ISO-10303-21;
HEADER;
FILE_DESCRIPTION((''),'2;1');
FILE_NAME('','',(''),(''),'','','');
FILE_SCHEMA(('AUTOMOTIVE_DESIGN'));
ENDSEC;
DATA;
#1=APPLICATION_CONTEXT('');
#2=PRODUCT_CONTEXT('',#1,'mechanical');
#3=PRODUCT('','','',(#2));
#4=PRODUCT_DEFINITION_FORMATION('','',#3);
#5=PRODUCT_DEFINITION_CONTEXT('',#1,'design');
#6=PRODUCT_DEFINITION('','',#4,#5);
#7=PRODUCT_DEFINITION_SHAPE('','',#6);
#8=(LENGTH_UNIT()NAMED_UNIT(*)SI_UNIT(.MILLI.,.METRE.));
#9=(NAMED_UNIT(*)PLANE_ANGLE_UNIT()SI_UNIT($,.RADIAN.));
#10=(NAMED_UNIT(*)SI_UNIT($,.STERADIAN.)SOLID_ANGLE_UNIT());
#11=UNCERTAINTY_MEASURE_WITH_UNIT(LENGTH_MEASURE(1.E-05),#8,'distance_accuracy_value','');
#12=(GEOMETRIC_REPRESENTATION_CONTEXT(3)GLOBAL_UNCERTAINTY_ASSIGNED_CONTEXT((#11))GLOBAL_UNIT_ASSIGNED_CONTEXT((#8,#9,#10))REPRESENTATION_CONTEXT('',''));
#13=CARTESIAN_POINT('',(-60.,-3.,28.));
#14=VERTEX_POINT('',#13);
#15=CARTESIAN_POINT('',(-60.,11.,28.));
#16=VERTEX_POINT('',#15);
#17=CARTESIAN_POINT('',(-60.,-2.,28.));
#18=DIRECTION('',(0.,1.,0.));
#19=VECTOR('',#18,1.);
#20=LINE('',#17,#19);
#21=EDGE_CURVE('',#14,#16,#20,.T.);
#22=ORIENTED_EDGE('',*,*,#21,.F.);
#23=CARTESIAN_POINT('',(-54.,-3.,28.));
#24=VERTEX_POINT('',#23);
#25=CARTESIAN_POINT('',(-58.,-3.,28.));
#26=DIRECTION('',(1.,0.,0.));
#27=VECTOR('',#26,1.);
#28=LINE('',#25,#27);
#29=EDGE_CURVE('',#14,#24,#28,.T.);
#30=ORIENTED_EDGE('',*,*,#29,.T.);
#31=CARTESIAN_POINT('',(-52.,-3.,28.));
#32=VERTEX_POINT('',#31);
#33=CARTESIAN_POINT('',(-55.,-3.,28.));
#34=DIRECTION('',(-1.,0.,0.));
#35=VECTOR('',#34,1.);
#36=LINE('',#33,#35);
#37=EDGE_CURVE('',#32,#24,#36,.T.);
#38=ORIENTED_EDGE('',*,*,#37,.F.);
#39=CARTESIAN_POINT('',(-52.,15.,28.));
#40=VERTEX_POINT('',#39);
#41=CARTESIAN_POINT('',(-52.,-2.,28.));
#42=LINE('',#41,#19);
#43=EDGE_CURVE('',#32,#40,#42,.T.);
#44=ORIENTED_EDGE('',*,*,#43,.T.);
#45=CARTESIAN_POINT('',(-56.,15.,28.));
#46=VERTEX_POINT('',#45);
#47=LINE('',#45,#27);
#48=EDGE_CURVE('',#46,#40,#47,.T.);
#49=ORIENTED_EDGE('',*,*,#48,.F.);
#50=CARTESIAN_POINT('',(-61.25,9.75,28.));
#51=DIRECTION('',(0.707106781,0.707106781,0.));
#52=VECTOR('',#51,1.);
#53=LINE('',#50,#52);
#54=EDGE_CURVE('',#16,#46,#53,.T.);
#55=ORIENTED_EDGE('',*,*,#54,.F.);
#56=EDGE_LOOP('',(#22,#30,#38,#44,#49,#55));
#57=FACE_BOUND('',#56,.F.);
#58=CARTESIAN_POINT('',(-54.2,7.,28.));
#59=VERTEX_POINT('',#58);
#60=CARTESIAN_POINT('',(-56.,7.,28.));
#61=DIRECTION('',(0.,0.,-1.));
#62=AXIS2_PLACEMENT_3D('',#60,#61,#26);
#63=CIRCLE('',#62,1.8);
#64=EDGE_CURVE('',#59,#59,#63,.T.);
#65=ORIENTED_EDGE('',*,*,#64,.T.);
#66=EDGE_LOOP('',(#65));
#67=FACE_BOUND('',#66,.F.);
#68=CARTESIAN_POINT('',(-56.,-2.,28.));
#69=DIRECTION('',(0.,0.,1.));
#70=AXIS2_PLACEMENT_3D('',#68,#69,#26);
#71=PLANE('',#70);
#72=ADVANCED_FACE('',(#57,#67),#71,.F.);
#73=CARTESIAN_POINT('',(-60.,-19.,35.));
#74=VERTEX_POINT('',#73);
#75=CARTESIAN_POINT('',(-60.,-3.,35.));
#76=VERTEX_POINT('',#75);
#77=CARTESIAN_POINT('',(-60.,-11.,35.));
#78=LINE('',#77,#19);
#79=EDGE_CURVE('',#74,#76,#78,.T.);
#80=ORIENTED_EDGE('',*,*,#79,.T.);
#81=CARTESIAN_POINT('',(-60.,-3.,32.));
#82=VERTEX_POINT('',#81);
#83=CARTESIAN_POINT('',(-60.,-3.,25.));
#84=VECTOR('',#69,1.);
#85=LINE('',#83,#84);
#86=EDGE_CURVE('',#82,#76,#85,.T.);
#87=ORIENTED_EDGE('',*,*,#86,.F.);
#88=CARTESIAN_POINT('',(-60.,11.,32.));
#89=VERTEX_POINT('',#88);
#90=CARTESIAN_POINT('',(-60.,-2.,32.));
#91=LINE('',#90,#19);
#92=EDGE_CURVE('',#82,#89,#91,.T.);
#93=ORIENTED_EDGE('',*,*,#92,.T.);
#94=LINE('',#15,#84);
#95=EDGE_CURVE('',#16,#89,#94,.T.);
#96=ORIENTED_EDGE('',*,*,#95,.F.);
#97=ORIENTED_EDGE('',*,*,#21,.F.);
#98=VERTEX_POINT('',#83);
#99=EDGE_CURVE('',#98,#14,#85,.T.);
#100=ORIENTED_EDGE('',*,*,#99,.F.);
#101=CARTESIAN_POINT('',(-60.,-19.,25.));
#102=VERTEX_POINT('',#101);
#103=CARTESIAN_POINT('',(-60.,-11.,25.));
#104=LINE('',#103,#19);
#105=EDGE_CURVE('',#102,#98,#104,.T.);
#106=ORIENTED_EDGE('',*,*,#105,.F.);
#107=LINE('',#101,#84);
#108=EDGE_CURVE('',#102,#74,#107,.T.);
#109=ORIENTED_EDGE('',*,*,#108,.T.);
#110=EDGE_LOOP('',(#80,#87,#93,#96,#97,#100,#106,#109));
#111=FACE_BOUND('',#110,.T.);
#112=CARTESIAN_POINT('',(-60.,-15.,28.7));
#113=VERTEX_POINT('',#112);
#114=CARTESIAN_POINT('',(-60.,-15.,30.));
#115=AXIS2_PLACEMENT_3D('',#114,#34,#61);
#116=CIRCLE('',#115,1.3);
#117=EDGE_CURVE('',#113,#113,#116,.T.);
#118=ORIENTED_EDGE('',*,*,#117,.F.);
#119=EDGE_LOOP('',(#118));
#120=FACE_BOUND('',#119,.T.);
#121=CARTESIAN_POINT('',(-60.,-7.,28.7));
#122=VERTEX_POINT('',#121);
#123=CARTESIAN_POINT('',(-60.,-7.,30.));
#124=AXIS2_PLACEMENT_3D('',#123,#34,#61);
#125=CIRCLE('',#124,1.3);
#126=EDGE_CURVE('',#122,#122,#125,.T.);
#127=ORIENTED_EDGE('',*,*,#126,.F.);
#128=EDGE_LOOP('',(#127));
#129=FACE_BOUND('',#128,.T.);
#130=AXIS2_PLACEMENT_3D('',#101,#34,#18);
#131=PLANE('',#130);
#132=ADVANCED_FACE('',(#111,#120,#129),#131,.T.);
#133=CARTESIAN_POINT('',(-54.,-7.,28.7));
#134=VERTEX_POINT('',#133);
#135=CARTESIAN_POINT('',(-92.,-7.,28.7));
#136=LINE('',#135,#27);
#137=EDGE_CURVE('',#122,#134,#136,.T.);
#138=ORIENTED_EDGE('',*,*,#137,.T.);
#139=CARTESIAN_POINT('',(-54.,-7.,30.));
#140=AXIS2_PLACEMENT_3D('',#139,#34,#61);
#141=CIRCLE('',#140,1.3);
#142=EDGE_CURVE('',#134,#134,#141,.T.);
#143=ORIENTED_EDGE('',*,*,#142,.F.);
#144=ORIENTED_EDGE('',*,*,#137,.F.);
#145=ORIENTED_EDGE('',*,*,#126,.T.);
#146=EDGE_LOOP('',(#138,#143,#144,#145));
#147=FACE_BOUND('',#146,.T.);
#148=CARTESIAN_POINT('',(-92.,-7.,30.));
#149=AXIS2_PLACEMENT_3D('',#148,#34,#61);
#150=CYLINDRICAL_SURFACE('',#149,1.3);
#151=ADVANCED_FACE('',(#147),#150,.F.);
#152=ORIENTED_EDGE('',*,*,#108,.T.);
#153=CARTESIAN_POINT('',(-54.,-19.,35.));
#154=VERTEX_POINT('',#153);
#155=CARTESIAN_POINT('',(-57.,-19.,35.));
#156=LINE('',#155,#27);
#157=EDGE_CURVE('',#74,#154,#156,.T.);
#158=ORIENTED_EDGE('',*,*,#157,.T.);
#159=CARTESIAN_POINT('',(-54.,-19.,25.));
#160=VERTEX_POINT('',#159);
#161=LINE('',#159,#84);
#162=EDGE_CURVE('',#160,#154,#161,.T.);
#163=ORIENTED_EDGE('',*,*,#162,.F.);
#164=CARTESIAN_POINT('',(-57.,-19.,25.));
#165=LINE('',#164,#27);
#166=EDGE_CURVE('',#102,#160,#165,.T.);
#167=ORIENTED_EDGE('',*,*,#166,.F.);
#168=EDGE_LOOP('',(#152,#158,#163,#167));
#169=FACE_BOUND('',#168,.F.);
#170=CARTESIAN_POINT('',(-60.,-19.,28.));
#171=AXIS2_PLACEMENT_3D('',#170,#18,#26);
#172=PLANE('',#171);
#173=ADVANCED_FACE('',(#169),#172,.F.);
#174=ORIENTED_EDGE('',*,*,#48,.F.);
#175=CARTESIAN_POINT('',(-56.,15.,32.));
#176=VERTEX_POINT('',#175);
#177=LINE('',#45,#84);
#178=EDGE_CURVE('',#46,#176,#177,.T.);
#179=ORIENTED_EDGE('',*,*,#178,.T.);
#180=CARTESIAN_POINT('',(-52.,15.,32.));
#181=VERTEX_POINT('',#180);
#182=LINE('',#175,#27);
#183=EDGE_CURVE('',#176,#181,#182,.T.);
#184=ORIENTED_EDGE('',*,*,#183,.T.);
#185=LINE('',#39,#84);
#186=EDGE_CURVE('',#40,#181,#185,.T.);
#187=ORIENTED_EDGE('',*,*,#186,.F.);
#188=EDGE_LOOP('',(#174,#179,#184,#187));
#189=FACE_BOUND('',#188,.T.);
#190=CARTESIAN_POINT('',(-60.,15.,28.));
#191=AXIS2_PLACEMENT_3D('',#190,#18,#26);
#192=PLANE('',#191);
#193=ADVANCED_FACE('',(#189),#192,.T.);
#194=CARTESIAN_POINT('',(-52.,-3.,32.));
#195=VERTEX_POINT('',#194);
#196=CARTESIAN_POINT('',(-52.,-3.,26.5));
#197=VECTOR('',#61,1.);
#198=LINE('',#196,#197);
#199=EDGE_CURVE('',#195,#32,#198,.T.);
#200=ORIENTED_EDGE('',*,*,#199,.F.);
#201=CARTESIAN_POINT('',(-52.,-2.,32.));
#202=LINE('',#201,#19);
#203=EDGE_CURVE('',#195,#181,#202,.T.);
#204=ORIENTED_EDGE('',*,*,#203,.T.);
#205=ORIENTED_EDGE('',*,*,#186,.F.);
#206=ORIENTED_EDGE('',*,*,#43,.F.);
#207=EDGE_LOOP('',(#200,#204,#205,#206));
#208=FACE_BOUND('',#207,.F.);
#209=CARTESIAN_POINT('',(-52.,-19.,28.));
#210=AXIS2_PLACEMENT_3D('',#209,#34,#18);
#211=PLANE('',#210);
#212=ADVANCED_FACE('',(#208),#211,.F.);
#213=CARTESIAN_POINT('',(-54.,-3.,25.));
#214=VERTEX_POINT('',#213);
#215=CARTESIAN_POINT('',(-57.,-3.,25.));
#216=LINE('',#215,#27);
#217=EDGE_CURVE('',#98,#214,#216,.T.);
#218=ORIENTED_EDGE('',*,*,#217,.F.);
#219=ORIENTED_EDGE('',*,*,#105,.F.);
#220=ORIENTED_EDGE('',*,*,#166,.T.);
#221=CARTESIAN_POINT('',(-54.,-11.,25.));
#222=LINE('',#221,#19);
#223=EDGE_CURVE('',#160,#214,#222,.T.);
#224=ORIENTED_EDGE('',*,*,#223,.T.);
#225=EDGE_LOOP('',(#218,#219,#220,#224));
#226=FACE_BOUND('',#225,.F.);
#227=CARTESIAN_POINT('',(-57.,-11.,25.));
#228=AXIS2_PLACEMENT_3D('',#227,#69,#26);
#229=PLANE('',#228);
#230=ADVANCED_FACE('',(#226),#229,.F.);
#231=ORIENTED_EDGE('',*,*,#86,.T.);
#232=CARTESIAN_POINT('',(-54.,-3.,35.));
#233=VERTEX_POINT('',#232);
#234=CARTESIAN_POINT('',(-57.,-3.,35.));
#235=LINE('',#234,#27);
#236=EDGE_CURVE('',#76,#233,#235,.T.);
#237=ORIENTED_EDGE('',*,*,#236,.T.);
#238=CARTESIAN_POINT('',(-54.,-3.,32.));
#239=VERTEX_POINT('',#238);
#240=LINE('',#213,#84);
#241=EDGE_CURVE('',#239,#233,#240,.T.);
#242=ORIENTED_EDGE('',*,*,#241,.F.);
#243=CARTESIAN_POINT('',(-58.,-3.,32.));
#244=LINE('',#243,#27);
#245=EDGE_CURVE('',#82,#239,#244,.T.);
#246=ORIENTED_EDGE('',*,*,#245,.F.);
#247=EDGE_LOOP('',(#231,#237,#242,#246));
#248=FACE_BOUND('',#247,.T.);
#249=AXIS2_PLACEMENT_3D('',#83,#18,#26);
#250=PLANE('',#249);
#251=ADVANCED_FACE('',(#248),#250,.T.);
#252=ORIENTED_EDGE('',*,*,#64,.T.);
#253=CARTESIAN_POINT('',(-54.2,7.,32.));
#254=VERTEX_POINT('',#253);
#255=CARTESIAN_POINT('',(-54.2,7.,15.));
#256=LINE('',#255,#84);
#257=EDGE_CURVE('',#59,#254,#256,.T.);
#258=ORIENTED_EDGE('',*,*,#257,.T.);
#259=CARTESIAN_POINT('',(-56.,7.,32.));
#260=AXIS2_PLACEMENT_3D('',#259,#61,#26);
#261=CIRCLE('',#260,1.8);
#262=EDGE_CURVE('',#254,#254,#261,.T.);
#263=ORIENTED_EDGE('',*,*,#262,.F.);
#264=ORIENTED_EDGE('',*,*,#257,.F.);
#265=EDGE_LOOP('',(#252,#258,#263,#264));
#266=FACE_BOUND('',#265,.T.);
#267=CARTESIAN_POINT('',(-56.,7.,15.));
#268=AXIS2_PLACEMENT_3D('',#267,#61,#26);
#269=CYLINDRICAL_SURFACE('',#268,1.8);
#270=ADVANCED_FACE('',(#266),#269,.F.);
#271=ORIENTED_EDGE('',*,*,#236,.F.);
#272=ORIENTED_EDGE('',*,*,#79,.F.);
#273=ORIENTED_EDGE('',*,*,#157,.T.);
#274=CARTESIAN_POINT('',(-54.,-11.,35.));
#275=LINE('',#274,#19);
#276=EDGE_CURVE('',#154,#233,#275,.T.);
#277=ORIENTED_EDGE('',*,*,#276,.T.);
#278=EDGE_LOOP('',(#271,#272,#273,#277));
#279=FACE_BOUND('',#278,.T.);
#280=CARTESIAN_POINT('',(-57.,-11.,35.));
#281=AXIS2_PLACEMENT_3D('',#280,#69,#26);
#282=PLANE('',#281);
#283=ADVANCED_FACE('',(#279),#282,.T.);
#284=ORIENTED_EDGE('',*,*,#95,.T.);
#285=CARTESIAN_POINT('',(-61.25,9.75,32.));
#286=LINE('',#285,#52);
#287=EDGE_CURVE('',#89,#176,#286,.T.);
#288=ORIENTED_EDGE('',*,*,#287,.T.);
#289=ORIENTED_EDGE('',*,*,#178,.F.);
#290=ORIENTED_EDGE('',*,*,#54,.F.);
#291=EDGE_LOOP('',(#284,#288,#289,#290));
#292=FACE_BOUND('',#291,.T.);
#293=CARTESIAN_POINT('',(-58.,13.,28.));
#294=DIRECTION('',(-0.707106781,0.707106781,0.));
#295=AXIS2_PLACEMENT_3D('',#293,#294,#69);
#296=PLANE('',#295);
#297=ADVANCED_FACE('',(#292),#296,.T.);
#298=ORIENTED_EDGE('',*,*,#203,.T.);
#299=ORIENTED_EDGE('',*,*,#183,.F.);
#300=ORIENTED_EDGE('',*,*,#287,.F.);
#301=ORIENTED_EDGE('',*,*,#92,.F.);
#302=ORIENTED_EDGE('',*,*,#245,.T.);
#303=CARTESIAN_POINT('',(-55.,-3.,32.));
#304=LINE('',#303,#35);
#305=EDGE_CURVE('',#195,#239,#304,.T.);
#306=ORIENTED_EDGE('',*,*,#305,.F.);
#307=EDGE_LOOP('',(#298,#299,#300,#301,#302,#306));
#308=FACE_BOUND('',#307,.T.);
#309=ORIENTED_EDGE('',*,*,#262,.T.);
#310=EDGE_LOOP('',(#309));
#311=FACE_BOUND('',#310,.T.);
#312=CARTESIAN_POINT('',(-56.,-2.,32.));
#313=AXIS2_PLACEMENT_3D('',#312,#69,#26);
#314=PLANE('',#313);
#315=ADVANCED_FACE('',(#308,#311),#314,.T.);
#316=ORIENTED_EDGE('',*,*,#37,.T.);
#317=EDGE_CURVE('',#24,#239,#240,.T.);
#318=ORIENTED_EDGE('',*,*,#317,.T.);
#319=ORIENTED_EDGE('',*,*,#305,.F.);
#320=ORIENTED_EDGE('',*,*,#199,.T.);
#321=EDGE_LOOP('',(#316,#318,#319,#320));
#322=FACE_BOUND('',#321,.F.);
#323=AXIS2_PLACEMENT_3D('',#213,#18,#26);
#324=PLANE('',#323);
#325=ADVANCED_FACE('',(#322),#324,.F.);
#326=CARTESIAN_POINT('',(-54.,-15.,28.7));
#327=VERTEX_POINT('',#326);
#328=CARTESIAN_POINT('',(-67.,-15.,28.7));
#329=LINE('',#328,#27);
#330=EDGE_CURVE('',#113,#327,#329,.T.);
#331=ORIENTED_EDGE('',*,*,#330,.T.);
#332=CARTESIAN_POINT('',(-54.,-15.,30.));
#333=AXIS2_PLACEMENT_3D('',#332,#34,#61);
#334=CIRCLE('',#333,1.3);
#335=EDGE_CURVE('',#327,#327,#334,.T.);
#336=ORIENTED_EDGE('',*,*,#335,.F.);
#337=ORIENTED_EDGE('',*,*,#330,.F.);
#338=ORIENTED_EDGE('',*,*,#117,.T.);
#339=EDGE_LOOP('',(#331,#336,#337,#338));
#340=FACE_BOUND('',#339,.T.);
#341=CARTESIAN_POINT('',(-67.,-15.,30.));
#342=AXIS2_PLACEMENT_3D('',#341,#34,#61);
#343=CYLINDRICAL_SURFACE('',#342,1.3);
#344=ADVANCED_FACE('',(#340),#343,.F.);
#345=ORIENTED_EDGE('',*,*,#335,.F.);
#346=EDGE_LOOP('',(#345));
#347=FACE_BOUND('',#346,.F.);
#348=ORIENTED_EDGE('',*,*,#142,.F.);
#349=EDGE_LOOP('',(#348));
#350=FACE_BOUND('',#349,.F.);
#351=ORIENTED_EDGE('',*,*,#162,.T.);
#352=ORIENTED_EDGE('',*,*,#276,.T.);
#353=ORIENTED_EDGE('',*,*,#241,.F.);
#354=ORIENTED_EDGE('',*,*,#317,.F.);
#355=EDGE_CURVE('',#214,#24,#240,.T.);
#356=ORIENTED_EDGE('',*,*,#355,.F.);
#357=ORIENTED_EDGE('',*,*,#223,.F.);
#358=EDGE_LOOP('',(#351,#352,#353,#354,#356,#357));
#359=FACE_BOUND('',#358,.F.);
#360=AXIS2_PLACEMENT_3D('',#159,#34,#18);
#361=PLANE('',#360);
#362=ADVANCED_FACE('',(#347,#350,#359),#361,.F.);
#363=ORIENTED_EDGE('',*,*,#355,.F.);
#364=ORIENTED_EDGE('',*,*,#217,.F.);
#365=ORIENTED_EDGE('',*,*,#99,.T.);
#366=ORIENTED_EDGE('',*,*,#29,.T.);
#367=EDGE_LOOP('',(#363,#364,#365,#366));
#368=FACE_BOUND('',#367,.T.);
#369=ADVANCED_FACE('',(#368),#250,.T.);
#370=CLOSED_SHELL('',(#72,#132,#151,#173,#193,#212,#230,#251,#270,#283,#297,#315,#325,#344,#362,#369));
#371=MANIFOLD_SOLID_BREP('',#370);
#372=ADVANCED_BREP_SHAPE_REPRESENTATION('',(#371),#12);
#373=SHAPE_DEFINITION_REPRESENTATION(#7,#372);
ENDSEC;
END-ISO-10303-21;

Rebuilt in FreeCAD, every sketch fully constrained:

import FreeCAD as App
import Part
import Sketcher

V = App.Vector
Q = App.Units.Quantity


def edges_at(feature, points):
    """Names of the edges that pass closest to the given points."""
    edges = feature.Shape.Edges
    near = lambda p: min(range(len(edges)), key=lambda i: edges[i].distToShape(Part.Vertex(*p))[0])
    return sorted({f"Edge{near(p) + 1}" for p in points})


def add_polygon(sketch, points):
    """Adds a closed chain of lines whose ends are joined by coincident constraints."""
    first, n = sketch.GeometryCount, len(points)
    for a, b in zip(points, points[1:] + points[:1]):
        sketch.addGeometry(Part.LineSegment(App.Vector(*a, 0), App.Vector(*b, 0)), False)
    for i in range(n):
        sketch.addConstraint(Sketcher.Constraint("Coincident", first + i, 2, first + (i + 1) % n, 1))

doc = App.newDocument("Part")
body = doc.addObject("PartDesign::Body", "Body")

sketch1 = doc.addObject("Sketcher::SketchObject", "Sketch")
body.addObject(sketch1)
sketch1.AttachmentSupport = (doc.XY_Plane, [""])
sketch1.MapMode = "FlatFace"
sketch1.addGeometry(Part.Circle(V(0, 0, 0), V(0, 0, 1), 1.3), False)
sketch1.addConstraint([
    Sketcher.Constraint("Coincident", 0, 3, -1, 1),
    Sketcher.Constraint("Diameter", 0, Q("2.6 mm")),
])
pad1 = doc.addObject("PartDesign::Pad", "Pad")
body.addObject(pad1)
pad1.Profile = sketch1
pad1.Length = 40
body2 = doc.addObject("PartDesign::Body", "Body001")
doc.recompute()

body.Placement = App.Placement(V(0, 0, 0), App.Rotation(V(0, 1, 0), 90))
boolean = doc.addObject("PartDesign::Boolean", "Boolean")
body2.addObject(boolean)
boolean.Type = "Fuse"
boolean.addObjects([body])
body3 = doc.addObject("PartDesign::Body", "Body002")
doc.recompute()

body2.Placement = App.Placement(V(-48, 7, 30), App.Rotation(V(0, 0, 1), 0))
boolean2 = doc.addObject("PartDesign::Boolean", "Boolean001")
body3.addObject(boolean2)
boolean2.Type = "Fuse"
boolean2.addObjects([body2])
body4 = doc.addObject("PartDesign::Body", "Body003")

sketch2 = doc.addObject("Sketcher::SketchObject", "Sketch001")
body4.addObject(sketch2)
sketch2.AttachmentSupport = (doc.getObject("XY_Plane003"), [""])
sketch2.MapMode = "FlatFace"
sketch2.addGeometry(Part.Circle(V(0, 0, 0), V(0, 0, 1), 1.3), False)
sketch2.addConstraint([
    Sketcher.Constraint("Coincident", 0, 3, -1, 1),
    Sketcher.Constraint("Diameter", 0, Q("2.6 mm")),
])
pad2 = doc.addObject("PartDesign::Pad", "Pad001")
body4.addObject(pad2)
pad2.Profile = sketch2
pad2.Length = 40
body5 = doc.addObject("PartDesign::Body", "Body004")
doc.recompute()

body4.Placement = App.Placement(V(0, 0, 0), App.Rotation(V(0, 1, 0), 90))
boolean3 = doc.addObject("PartDesign::Boolean", "Boolean002")
body5.addObject(boolean3)
boolean3.Type = "Fuse"
boolean3.addObjects([body4])
body6 = doc.addObject("PartDesign::Body", "Body005")
doc.recompute()

body5.Placement = App.Placement(V(-67, -15, 30), App.Rotation(V(0, 0, 1), 0))
boolean4 = doc.addObject("PartDesign::Boolean", "Boolean003")
body6.addObject(boolean4)
boolean4.Type = "Fuse"
boolean4.addObjects([body5])
body7 = doc.addObject("PartDesign::Body", "Body006")

sketch3 = doc.addObject("Sketcher::SketchObject", "Sketch002")
body7.addObject(sketch3)
sketch3.AttachmentSupport = (doc.getObject("XY_Plane006"), [""])
sketch3.MapMode = "FlatFace"
sketch3.addGeometry(Part.Circle(V(0, 0, 0), V(0, 0, 1), 1.3), False)
sketch3.addConstraint([
    Sketcher.Constraint("Coincident", 0, 3, -1, 1),
    Sketcher.Constraint("Diameter", 0, Q("2.6 mm")),
])
pad3 = doc.addObject("PartDesign::Pad", "Pad002")
body7.addObject(pad3)
pad3.Profile = sketch3
pad3.Length = 40
body8 = doc.addObject("PartDesign::Body", "Body007")
doc.recompute()

body7.Placement = App.Placement(V(0, 0, 0), App.Rotation(V(0, 1, 0), 90))
boolean5 = doc.addObject("PartDesign::Boolean", "Boolean004")
body8.addObject(boolean5)
boolean5.Type = "Fuse"
boolean5.addObjects([body7])
body9 = doc.addObject("PartDesign::Body", "Body008")
body9.AllowCompound = True
doc.recompute()

body8.Placement = App.Placement(V(-92, -7, 30), App.Rotation(V(0, 0, 1), 0))
boolean6 = doc.addObject("PartDesign::Boolean", "Boolean005")
body9.addObject(boolean6)
boolean6.Type = "Fuse"
boolean6.addObjects([body8])
doc.recompute()

boolean7 = doc.addObject("PartDesign::Boolean", "Boolean006")
body9.addObject(boolean7)
boolean7.Type = "Fuse"
boolean7.addObjects([body6])
doc.recompute()

boolean8 = doc.addObject("PartDesign::Boolean", "Boolean007")
body9.addObject(boolean8)
boolean8.Type = "Fuse"
boolean8.addObjects([body3])
body10 = doc.addObject("PartDesign::Body", "Body009")

sketch4 = doc.addObject("Sketcher::SketchObject", "Sketch003")
body10.addObject(sketch4)
sketch4.AttachmentSupport = (doc.getObject("XY_Plane009"), [""])
sketch4.MapMode = "FlatFace"
sketch4.AttachmentOffset = App.Placement(V(0, 0, 15), App.Rotation())
sketch4.addGeometry(Part.Circle(V(-56, 7, 0), V(0, 0, 1), 1.8), False)
sketch4.addConstraint([
    Sketcher.Constraint("Diameter", 0, Q("3.6 mm")),
    Sketcher.Constraint("DistanceX", 0, 3, -1, 1, Q("56 mm")),
    Sketcher.Constraint("DistanceY", -1, 1, 0, 3, Q("7 mm")),
])
pad4 = doc.addObject("PartDesign::Pad", "Pad003")
body10.addObject(pad4)
pad4.Profile = sketch4
pad4.Length = 40
body11 = doc.addObject("PartDesign::Body", "Body010")

sketch5 = doc.addObject("Sketcher::SketchObject", "Sketch004")
body11.addObject(sketch5)
sketch5.AttachmentSupport = (doc.getObject("XY_Plane010"), [""])
sketch5.MapMode = "FlatFace"
sketch5.AttachmentOffset = App.Placement(V(0, 0, 25), App.Rotation())
add_polygon(sketch5, [(-54, -3), (-54, -19), (-50, -19), (-50, -3)])
sketch5.addConstraint([
    Sketcher.Constraint("Vertical", 0),
    Sketcher.Constraint("Horizontal", 1),
    Sketcher.Constraint("Vertical", 2),
    Sketcher.Constraint("Horizontal", 3),
    Sketcher.Constraint("DistanceX", 1, 1, 1, 2, Q("4 mm")),
    Sketcher.Constraint("DistanceY", 0, 2, 0, 1, Q("16 mm")),
    Sketcher.Constraint("DistanceX", 0, 2, -1, 1, Q("54 mm")),
    Sketcher.Constraint("DistanceY", 0, 2, -1, 1, Q("19 mm")),
])
pad5 = doc.addObject("PartDesign::Pad", "Pad004")
body11.addObject(pad5)
pad5.Profile = sketch5
pad5.Length = 10
body12 = doc.addObject("PartDesign::Body", "Body011")

sketch6 = doc.addObject("Sketcher::SketchObject", "Sketch005")
body12.addObject(sketch6)
sketch6.AttachmentSupport = (doc.getObject("XY_Plane011"), [""])
sketch6.MapMode = "FlatFace"
sketch6.AttachmentOffset = App.Placement(V(0, 0, 28), App.Rotation())
add_polygon(sketch6, [(-60, 15), (-60, -19), (-52, -19), (-52, 15)])
sketch6.addConstraint([
    Sketcher.Constraint("Vertical", 0),
    Sketcher.Constraint("Horizontal", 1),
    Sketcher.Constraint("Vertical", 2),
    Sketcher.Constraint("Horizontal", 3),
    Sketcher.Constraint("DistanceX", 1, 1, 1, 2, Q("8 mm")),
    Sketcher.Constraint("DistanceY", 0, 2, 0, 1, Q("34 mm")),
    Sketcher.Constraint("DistanceX", 0, 2, -1, 1, Q("60 mm")),
    Sketcher.Constraint("DistanceY", 0, 2, -1, 1, Q("19 mm")),
])
pad6 = doc.addObject("PartDesign::Pad", "Pad005")
body12.addObject(pad6)
pad6.Profile = sketch6
pad6.Length = 4
doc.recompute()

boolean9 = doc.addObject("PartDesign::Boolean", "Boolean008")
body12.addObject(boolean9)
boolean9.Type = "Cut"
boolean9.addObjects([body11])
body13 = doc.addObject("PartDesign::Body", "Body012")

sketch7 = doc.addObject("Sketcher::SketchObject", "Sketch006")
body13.addObject(sketch7)
sketch7.AttachmentSupport = (doc.getObject("XY_Plane012"), [""])
sketch7.MapMode = "FlatFace"
sketch7.AttachmentOffset = App.Placement(V(0, 0, 25), App.Rotation())
add_polygon(sketch7, [(-60, -3), (-60, -19), (-54, -19), (-54, -3)])
sketch7.addConstraint([
    Sketcher.Constraint("Vertical", 0),
    Sketcher.Constraint("Horizontal", 1),
    Sketcher.Constraint("Vertical", 2),
    Sketcher.Constraint("Horizontal", 3),
    Sketcher.Constraint("DistanceX", 1, 1, 1, 2, Q("6 mm")),
    Sketcher.Constraint("DistanceY", 0, 2, 0, 1, Q("16 mm")),
    Sketcher.Constraint("DistanceX", 0, 2, -1, 1, Q("60 mm")),
    Sketcher.Constraint("DistanceY", 0, 2, -1, 1, Q("19 mm")),
])
pad7 = doc.addObject("PartDesign::Pad", "Pad006")
body13.addObject(pad7)
pad7.Profile = sketch7
pad7.Length = 10
doc.recompute()

boolean10 = doc.addObject("PartDesign::Boolean", "Boolean009")
body13.addObject(boolean10)
boolean10.Type = "Fuse"
boolean10.addObjects([body12])
doc.recompute()

boolean11 = doc.addObject("PartDesign::Boolean", "Boolean010")
body13.addObject(boolean11)
boolean11.Type = "Cut"
boolean11.addObjects([body10])
doc.recompute()

boolean12 = doc.addObject("PartDesign::Boolean", "Boolean011")
body13.addObject(boolean12)
boolean12.Type = "Cut"
boolean12.addObjects([body9])
doc.recompute()

chamfer = doc.addObject("PartDesign::Chamfer", "Chamfer")
body13.addObject(chamfer)
chamfer.Base = (boolean12, edges_at(boolean12, [(-60, 15, 30)]))
chamfer.Size = 4

doc.recompute()
